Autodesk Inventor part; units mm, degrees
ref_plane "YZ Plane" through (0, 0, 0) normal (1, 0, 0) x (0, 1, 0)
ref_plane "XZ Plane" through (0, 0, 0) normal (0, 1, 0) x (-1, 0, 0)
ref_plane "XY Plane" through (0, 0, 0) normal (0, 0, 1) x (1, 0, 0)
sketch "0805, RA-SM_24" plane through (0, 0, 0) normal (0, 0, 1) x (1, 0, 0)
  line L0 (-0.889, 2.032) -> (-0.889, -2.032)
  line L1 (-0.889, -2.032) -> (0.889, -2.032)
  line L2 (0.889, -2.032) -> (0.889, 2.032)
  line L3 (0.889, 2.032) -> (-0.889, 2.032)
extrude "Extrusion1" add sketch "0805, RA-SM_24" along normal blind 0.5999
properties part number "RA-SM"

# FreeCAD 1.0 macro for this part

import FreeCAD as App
import Part
import Sketcher
Q = App.Units.Quantity

doc = App.newDocument("Part")
body = doc.addObject("PartDesign::Body", "Body")

# Sketch on XY plane
sketch1 = body.newObject("Sketcher::SketchObject", "Sketch")
sketch1.AttachmentSupport = (doc.getObject("XY_Plane"), [""])
sketch1.MapMode = "FlatFace"
sketch1.addGeometry([
    Part.LineSegment(App.Vector(0.9, 2, 0), App.Vector(-0.9, 2, 0)),
    Part.LineSegment(App.Vector(-0.9, 2, 0), App.Vector(-0.9, -2, 0)),
    Part.LineSegment(App.Vector(-0.9, -2, 0), App.Vector(0.9, -2, 0)),
    Part.LineSegment(App.Vector(0.9, -2, 0), App.Vector(0.9, 2, 0)),
], False)
sketch1.addConstraint([
    Sketcher.Constraint("Coincident", 0, 2, 1, 1),
    Sketcher.Constraint("Coincident", 1, 2, 2, 1),
    Sketcher.Constraint("Coincident", 2, 2, 3, 1),
    Sketcher.Constraint("Coincident", 3, 2, 0, 1),
    Sketcher.Constraint("Horizontal", 0),
    Sketcher.Constraint("Vertical", 1),
    Sketcher.Constraint("Horizontal", 2),
    Sketcher.Constraint("Vertical", 3),
    Sketcher.Constraint("Symmetric", 0, 2, 2, 2, -1, 1),
    Sketcher.Constraint("DistanceX", 0, 2, 0, 1, Q("0.07 in")),
    Sketcher.Constraint("DistanceY", 1, 2, 1, 1, Q("0.16 in")),
])
pad1 = body.newObject("PartDesign::Pad", "Pad")
pad1.Profile = sketch1
pad1.Length = 0.5999

doc.recompute()
